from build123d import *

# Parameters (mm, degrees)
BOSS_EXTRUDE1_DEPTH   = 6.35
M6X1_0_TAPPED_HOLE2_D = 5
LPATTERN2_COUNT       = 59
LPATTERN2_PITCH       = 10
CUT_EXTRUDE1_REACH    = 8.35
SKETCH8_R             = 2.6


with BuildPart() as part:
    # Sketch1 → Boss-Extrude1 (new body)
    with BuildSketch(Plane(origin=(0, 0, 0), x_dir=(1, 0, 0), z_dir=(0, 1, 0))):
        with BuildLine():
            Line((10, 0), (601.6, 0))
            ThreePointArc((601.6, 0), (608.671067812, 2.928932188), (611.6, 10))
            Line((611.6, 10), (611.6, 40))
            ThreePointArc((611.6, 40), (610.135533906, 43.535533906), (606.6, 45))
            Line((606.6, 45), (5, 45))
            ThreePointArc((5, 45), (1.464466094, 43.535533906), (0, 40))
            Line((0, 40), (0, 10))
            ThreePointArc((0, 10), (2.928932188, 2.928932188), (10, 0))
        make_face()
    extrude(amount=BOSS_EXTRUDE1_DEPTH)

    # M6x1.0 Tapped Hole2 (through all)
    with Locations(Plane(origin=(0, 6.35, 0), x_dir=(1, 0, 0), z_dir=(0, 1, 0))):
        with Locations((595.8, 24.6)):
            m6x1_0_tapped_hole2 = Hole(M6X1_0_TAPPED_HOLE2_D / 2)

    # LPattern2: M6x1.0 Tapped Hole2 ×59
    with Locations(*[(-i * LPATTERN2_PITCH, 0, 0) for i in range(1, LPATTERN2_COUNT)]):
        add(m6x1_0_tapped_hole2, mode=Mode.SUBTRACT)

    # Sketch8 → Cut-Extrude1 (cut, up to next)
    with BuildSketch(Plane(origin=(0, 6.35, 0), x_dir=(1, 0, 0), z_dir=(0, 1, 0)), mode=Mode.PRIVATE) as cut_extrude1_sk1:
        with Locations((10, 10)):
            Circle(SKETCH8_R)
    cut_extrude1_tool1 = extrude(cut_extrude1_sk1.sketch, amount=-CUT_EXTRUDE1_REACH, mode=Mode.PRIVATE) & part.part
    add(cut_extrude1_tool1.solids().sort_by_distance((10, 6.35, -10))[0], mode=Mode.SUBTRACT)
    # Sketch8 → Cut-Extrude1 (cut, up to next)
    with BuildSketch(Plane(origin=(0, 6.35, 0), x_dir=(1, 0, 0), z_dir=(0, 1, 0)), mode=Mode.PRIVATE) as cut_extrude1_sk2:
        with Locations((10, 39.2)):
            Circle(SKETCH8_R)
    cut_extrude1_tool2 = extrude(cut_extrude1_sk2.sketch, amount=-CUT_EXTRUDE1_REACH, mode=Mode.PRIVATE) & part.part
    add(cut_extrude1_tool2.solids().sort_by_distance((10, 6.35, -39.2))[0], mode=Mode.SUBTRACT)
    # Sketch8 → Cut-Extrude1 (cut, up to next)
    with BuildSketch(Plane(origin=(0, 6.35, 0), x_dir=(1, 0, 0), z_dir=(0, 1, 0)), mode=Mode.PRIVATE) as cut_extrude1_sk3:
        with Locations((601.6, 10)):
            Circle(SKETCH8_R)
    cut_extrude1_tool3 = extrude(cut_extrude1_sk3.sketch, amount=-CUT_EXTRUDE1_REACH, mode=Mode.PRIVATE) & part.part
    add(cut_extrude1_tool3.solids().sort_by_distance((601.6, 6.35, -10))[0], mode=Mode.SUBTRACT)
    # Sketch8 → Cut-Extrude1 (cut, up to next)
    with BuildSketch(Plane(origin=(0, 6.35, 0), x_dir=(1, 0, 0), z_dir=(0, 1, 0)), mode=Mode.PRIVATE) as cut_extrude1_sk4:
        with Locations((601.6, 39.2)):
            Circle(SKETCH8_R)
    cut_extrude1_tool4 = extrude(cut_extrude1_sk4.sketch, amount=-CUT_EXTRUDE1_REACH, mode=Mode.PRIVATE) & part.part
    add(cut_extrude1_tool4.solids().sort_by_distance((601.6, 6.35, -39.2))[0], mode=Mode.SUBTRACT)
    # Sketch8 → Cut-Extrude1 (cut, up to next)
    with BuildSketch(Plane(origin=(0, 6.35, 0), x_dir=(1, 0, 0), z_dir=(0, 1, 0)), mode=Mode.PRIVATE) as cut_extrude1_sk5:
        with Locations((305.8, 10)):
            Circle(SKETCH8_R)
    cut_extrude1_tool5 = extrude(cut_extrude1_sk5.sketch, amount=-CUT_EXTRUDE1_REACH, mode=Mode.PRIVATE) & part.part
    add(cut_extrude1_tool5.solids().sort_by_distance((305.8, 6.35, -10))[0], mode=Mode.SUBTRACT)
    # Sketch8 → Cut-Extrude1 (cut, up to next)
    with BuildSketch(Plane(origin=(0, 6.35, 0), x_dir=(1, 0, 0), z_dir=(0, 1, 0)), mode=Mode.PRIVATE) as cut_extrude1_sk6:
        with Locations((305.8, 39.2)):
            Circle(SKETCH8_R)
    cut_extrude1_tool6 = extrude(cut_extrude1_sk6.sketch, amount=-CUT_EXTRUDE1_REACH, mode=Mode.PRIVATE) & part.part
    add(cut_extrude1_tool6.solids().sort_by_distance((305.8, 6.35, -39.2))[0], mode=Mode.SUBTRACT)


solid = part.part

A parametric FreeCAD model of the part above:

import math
import FreeCAD as App
import Part
import Sketcher
from FreeCAD import Vector
Q = App.Units.Quantity

doc = App.newDocument("Part")
body = doc.addObject("PartDesign::Body", "Body")

# Sketch on XZ plane
sketch1 = body.newObject("Sketcher::SketchObject", "Sketch")
sketch1.AttachmentSupport = (doc.getObject("XZ_Plane"), [""])
sketch1.MapMode = "FlatFace"
sketch1.addGeometry([
    Part.LineSegment(Vector(10, 0, 0), Vector(601.6, 0, 0)),  # 0
    Part.ArcOfCircle(Part.Circle(Vector(601.6, -10, 0), Vector(0, 0, 1), 10), math.radians(0), math.radians(90)),  # 1
    Part.LineSegment(Vector(611.6, -10, 0), Vector(611.6, -40, 0)),  # 2
    Part.ArcOfCircle(Part.Circle(Vector(606.6, -40, 0), Vector(0, 0, 1), 5), math.radians(-90), math.radians(0)),  # 3
    Part.LineSegment(Vector(606.6, -45, 0), Vector(5, -45, 0)),  # 4
    Part.ArcOfCircle(Part.Circle(Vector(5, -40, 0), Vector(0, 0, 1), 5), math.radians(180), math.radians(270)),  # 5
    Part.LineSegment(Vector(0, -40, 0), Vector(0, -10, 0)),  # 6
    Part.ArcOfCircle(Part.Circle(Vector(10, -10, 0), Vector(0, 0, 1), 10), math.radians(90), math.radians(180)),  # 7
], False)
sketch1.addConstraint([
    Sketcher.Constraint("Tangent", 0, 2, 1, 2),
    Sketcher.Constraint("Tangent", 1, 1, 2, 1),
    Sketcher.Constraint("Tangent", 2, 2, 3, 2),
    Sketcher.Constraint("Tangent", 3, 1, 4, 1),
    Sketcher.Constraint("Tangent", 4, 2, 5, 2),
    Sketcher.Constraint("Tangent", 5, 1, 6, 1),
    Sketcher.Constraint("Tangent", 6, 2, 7, 2),
    Sketcher.Constraint("Tangent", 7, 1, 0, 1),
    Sketcher.Constraint("Horizontal", 0),
    Sketcher.Constraint("Vertical", 2),
    Sketcher.Constraint("Horizontal", 4),
    Sketcher.Constraint("Vertical", 6),
    Sketcher.Constraint("Equal", 3, 5),
    Sketcher.Constraint("Equal", 1, 7),
    Sketcher.Constraint("PointOnObject", 0, 2, -1),
    Sketcher.Constraint("PointOnObject", 5, 1, -2),
    Sketcher.Constraint("Radius", 1, Q("10 mm")),
    Sketcher.Constraint("Radius", 3, Q("5 mm")),
    Sketcher.Constraint("DistanceY", 2, 2, 2, 1, Q("30 mm")),
    Sketcher.Constraint("DistanceX", 0, 1, 0, 2, Q("591.6 mm")),
])
pad1 = body.newObject("PartDesign::Pad", "Pad")
pad1.Profile = sketch1
pad1.Length = 6.35
pad1.Reversed = True

# Sketch on XZ plane
sketch2 = body.newObject("Sketcher::SketchObject", "Sketch001")
sketch2.AttachmentSupport = (doc.getObject("XZ_Plane"), [""])
sketch2.MapMode = "FlatFace"
sketch2.AttachmentOffset = App.Placement(Vector(0, 0, -6.35), App.Rotation())
sketch2.addGeometry(Part.Circle(Vector(595.8, -24.6, 0), Vector(0, 0, 1), 2.5), False)
sketch2.addConstraint([
    Sketcher.Constraint("Diameter", 0, Q("5 mm")),
    Sketcher.Constraint("DistanceX", -1, 1, 0, 3, Q("595.8 mm")),
    Sketcher.Constraint("DistanceY", 0, 3, -1, 1, Q("24.6 mm")),
])
doc.recompute()
hole = body.newObject("PartDesign::Hole", "Hole")
hole.Profile = sketch2
hole.ThreadType = "None"
hole.Diameter = 5
hole.DepthType = "ThroughAll"
hole.Reversed = True
doc.recompute()

linearpattern = body.newObject("PartDesign::LinearPattern", "LinearPattern")
linearpattern.Originals = [hole]
linearpattern.Direction = (doc.getObject("X_Axis"), [""])
linearpattern.Mode = "offset"
linearpattern.Offset = 10
linearpattern.Occurrences = 59
linearpattern.Reversed = True
body.Tip = linearpattern

# Sketch on XZ plane
sketch3 = body.newObject("Sketcher::SketchObject", "Sketch002")
sketch3.AttachmentSupport = (doc.getObject("XZ_Plane"), [""])
sketch3.MapMode = "FlatFace"
sketch3.AttachmentOffset = App.Placement(Vector(0, 0, -6.35), App.Rotation())
sketch3.addGeometry(Part.Circle(Vector(10, -10, 0), Vector(0, 0, 1), 2.6), False)
sketch3.addConstraint([
    Sketcher.Constraint("Diameter", 0, Q("5.2 mm")),
    Sketcher.Constraint("DistanceX", -1, 1, 0, 3, Q("10 mm")),
    Sketcher.Constraint("DistanceY", 0, 3, -1, 1, Q("10 mm")),
])
pocket1 = body.newObject("PartDesign::Pocket", "Pocket")
pocket1.Profile = sketch3
pocket1.Type = "UpToFirst"
pocket1.Reversed = True

# Sketch on XZ plane
sketch4 = body.newObject("Sketcher::SketchObject", "Sketch003")
sketch4.AttachmentSupport = (doc.getObject("XZ_Plane"), [""])
sketch4.MapMode = "FlatFace"
sketch4.AttachmentOffset = App.Placement(Vector(0, 0, -6.35), App.Rotation())
sketch4.addGeometry(Part.Circle(Vector(10, -39.2, 0), Vector(0, 0, 1), 2.6), False)
sketch4.addConstraint([
    Sketcher.Constraint("Diameter", 0, Q("5.2 mm")),
    Sketcher.Constraint("DistanceX", -1, 1, 0, 3, Q("10 mm")),
    Sketcher.Constraint("DistanceY", 0, 3, -1, 1, Q("39.2 mm")),
])
pocket2 = body.newObject("PartDesign::Pocket", "Pocket001")
pocket2.Profile = sketch4
pocket2.Type = "UpToFirst"
pocket2.Reversed = True

# Sketch on XZ plane
sketch5 = body.newObject("Sketcher::SketchObject", "Sketch004")
sketch5.AttachmentSupport = (doc.getObject("XZ_Plane"), [""])
sketch5.MapMode = "FlatFace"
sketch5.AttachmentOffset = App.Placement(Vector(0, 0, -6.35), App.Rotation())
sketch5.addGeometry(Part.Circle(Vector(601.6, -10, 0), Vector(0, 0, 1), 2.6), False)
sketch5.addConstraint([
    Sketcher.Constraint("Diameter", 0, Q("5.2 mm")),
    Sketcher.Constraint("DistanceY", 0, 3, -1, 1, Q("10 mm")),
    Sketcher.Constraint("DistanceX", -1, 1, 0, 3, Q("601.6 mm")),
])
pocket3 = body.newObject("PartDesign::Pocket", "Pocket002")
pocket3.Profile = sketch5
pocket3.Type = "UpToFirst"
pocket3.Reversed = True

# Sketch on XZ plane
sketch6 = body.newObject("Sketcher::SketchObject", "Sketch005")
sketch6.AttachmentSupport = (doc.getObject("XZ_Plane"), [""])
sketch6.MapMode = "FlatFace"
sketch6.AttachmentOffset = App.Placement(Vector(0, 0, -6.35), App.Rotation())
sketch6.addGeometry(Part.Circle(Vector(601.6, -39.2, 0), Vector(0, 0, 1), 2.6), False)
sketch6.addConstraint([
    Sketcher.Constraint("Diameter", 0, Q("5.2 mm")),
    Sketcher.Constraint("DistanceX", -1, 1, 0, 3, Q("601.6 mm")),
    Sketcher.Constraint("DistanceY", 0, 3, -1, 1, Q("39.2 mm")),
])
pocket4 = body.newObject("PartDesign::Pocket", "Pocket003")
pocket4.Profile = sketch6
pocket4.Type = "UpToFirst"
pocket4.Reversed = True

# Sketch on XZ plane
sketch7 = body.newObject("Sketcher::SketchObject", "Sketch006")
sketch7.AttachmentSupport = (doc.getObject("XZ_Plane"), [""])
sketch7.MapMode = "FlatFace"
sketch7.AttachmentOffset = App.Placement(Vector(0, 0, -6.35), App.Rotation())
sketch7.addGeometry(Part.Circle(Vector(305.8, -10, 0), Vector(0, 0, 1), 2.6), False)
sketch7.addConstraint([
    Sketcher.Constraint("Diameter", 0, Q("5.2 mm")),
    Sketcher.Constraint("DistanceY", 0, 3, -1, 1, Q("10 mm")),
    Sketcher.Constraint("DistanceX", -1, 1, 0, 3, Q("305.8 mm")),
])
pocket5 = body.newObject("PartDesign::Pocket", "Pocket004")
pocket5.Profile = sketch7
pocket5.Type = "UpToFirst"
pocket5.Reversed = True

# Sketch on XZ plane
sketch8 = body.newObject("Sketcher::SketchObject", "Sketch007")
sketch8.AttachmentSupport = (doc.getObject("XZ_Plane"), [""])
sketch8.MapMode = "FlatFace"
sketch8.AttachmentOffset = App.Placement(Vector(0, 0, -6.35), App.Rotation())
sketch8.addGeometry(Part.Circle(Vector(305.8, -39.2, 0), Vector(0, 0, 1), 2.6), False)
sketch8.addConstraint([
    Sketcher.Constraint("Diameter", 0, Q("5.2 mm")),
    Sketcher.Constraint("DistanceX", -1, 1, 0, 3, Q("305.8 mm")),
    Sketcher.Constraint("DistanceY", 0, 3, -1, 1, Q("39.2 mm")),
])
pocket6 = body.newObject("PartDesign::Pocket", "Pocket005")
pocket6.Profile = sketch8
pocket6.Type = "UpToFirst"
pocket6.Reversed = True

doc.recompute()
